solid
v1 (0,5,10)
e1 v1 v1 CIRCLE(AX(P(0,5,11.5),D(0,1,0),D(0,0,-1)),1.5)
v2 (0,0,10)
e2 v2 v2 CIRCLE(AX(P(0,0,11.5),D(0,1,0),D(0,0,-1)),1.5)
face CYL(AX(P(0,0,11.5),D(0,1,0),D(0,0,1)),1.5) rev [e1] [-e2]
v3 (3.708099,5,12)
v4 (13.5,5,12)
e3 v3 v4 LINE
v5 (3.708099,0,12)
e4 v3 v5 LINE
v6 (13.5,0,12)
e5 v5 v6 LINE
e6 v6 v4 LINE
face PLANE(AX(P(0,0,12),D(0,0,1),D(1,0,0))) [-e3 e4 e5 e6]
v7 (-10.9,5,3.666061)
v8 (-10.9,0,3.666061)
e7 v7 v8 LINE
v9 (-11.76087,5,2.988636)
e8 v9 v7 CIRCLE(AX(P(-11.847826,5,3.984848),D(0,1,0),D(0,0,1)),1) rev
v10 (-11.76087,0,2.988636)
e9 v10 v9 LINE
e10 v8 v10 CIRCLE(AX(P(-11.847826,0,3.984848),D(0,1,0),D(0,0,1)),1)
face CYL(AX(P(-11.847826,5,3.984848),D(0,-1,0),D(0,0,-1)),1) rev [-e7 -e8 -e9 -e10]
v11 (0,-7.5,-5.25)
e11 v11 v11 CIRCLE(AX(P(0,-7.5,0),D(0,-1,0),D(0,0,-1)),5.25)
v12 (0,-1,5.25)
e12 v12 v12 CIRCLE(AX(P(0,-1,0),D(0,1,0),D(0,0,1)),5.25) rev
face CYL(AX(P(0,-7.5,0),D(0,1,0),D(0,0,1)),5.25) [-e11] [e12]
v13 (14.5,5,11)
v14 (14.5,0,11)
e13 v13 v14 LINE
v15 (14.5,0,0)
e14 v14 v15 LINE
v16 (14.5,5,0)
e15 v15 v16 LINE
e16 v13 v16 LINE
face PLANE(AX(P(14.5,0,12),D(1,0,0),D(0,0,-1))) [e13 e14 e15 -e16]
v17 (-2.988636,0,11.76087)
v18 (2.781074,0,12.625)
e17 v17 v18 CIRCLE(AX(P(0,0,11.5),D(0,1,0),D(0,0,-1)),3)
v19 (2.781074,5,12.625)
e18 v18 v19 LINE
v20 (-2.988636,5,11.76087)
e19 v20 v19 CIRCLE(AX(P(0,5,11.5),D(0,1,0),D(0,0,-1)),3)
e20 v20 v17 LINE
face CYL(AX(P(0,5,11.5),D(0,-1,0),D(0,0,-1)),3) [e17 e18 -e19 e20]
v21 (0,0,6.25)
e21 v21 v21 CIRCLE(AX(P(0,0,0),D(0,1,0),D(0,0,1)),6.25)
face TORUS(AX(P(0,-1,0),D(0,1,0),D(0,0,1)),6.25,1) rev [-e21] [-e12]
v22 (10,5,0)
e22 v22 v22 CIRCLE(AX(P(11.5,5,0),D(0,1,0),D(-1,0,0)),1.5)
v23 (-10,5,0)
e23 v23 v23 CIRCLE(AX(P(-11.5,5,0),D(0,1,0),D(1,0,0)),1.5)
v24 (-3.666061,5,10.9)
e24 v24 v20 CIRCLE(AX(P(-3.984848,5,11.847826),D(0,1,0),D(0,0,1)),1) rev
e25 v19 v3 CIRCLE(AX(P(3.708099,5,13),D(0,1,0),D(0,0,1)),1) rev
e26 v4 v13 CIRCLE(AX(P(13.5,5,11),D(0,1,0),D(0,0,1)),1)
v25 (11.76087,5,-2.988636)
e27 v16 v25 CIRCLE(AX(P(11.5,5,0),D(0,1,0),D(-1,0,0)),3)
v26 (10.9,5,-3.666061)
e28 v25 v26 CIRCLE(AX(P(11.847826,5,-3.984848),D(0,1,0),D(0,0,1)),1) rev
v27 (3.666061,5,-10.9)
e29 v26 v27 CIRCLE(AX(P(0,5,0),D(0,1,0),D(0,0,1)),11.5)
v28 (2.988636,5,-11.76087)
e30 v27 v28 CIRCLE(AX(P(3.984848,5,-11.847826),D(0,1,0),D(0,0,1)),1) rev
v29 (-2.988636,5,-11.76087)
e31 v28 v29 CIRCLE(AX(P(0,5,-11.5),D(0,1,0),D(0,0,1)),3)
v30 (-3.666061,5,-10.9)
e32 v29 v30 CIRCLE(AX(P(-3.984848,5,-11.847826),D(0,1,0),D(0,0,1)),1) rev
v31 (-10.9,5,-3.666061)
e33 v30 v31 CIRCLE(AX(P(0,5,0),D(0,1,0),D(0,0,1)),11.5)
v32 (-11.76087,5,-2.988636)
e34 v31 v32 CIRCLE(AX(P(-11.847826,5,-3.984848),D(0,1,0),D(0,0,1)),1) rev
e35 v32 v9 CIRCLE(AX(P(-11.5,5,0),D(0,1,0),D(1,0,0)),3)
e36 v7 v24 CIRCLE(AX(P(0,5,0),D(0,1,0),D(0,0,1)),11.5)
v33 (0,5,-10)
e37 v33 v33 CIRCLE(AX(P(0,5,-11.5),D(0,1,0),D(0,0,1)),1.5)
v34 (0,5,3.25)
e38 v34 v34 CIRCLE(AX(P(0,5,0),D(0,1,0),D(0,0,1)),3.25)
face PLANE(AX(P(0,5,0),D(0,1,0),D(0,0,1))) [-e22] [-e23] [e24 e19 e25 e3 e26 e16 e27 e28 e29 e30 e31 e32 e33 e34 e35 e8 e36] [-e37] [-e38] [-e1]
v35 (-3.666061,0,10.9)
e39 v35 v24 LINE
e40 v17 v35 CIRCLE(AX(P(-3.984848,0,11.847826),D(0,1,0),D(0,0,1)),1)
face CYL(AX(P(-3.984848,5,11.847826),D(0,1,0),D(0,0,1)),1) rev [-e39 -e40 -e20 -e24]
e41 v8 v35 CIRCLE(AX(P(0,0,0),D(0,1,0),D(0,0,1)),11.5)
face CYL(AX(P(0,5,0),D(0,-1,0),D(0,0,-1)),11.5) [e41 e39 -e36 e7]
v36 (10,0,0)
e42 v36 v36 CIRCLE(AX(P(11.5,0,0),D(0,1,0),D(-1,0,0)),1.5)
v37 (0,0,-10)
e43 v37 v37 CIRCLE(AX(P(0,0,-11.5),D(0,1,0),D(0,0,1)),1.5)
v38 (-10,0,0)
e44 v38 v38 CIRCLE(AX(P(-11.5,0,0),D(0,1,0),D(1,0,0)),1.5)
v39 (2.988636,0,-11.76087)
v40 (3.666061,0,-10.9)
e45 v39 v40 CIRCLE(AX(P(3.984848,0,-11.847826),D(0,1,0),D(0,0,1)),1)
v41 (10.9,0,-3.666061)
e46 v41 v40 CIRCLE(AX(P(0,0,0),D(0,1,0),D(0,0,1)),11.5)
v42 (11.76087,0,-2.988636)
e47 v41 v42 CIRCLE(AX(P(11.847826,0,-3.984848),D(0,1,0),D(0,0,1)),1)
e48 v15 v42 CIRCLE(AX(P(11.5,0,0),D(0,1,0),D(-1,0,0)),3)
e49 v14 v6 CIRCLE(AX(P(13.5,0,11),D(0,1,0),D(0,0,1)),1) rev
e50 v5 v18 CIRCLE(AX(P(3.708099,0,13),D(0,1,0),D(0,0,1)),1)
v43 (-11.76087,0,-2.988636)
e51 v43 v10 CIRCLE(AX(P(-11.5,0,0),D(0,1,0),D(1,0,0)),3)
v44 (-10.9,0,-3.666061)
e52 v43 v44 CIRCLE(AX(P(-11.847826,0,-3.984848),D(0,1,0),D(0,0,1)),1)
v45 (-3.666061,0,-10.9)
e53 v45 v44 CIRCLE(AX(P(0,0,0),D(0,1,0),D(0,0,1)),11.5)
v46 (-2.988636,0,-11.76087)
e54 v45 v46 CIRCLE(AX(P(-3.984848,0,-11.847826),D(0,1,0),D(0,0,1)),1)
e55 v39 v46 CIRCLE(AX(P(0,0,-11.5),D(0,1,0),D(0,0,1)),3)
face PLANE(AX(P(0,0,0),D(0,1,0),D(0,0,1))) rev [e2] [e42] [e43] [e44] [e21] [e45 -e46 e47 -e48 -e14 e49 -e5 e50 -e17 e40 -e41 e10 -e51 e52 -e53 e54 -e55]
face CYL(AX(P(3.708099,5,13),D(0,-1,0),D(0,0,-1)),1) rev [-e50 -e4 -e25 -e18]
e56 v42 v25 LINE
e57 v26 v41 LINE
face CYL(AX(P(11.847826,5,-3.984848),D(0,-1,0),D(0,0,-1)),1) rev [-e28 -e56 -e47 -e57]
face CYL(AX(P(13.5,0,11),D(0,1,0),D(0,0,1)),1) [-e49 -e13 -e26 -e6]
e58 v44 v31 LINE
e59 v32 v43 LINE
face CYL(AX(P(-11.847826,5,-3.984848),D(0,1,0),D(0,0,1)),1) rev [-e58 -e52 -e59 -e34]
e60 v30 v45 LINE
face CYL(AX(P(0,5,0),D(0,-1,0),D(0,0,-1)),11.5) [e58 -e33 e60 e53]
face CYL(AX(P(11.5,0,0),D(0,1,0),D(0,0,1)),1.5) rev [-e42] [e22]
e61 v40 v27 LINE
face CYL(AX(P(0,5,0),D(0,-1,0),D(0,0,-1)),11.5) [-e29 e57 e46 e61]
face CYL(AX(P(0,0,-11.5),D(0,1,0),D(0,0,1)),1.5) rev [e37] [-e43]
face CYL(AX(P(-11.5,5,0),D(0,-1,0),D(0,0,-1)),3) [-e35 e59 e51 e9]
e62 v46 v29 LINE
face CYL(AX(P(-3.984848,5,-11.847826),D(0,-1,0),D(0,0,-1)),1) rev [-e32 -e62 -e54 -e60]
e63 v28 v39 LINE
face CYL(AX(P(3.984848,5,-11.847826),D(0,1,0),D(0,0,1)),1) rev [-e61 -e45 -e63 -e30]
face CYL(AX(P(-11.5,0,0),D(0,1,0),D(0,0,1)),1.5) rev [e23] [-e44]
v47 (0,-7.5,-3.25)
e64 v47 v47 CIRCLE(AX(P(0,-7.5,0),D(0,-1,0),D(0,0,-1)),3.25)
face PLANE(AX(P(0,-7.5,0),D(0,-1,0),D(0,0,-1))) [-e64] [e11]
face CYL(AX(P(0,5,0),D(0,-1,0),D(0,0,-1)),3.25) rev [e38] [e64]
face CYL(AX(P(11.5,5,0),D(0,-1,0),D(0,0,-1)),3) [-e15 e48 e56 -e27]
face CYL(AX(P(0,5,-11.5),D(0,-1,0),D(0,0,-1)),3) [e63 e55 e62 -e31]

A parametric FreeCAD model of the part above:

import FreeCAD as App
import Part
import Sketcher

V = App.Vector


def edges_at(feature, points):
    """Names of the edges that pass closest to the given points."""
    edges = feature.Shape.Edges
    near = lambda p: min(range(len(edges)), key=lambda i: edges[i].distToShape(Part.Vertex(*p))[0])
    return sorted({f"Edge{near(p) + 1}" for p in points})


def add_polygon(sketch, points):
    """Adds a closed chain of lines whose ends are joined by coincident constraints."""
    first, n = sketch.GeometryCount, len(points)
    for a, b in zip(points, points[1:] + points[:1]):
        sketch.addGeometry(Part.LineSegment(App.Vector(*a, 0), App.Vector(*b, 0)), False)
    for i in range(n):
        sketch.addConstraint(Sketcher.Constraint("Coincident", first + i, 2, first + (i + 1) % n, 1))

doc = App.newDocument("Part")
params = doc.addObject("Spreadsheet::Sheet", "Params")
for row, (alias, value) in enumerate([
    ("sketch1_diameter", "23 mm"),
    ("sketch1_diameter2", "6.5 mm"),
    ("pad1_length", "5 mm"),
    ("sketch2_diameter", "6 mm"),
    ("pad2_length", "5 mm"),
    ("sketch3_diameter", "3 mm"),
    ("pocket1_length", "5 mm"),
    ("sketch4_height", "12 mm"),
    ("sketch4_width", "14.5 mm"),
    ("pad3_length", "5 mm"),
    ("sketch5_diameter", "10.5 mm"),
    ("sketch5_diameter2", "6.5 mm"),
    ("pad4_length", "7.5 mm"),
    ("fillet_radius", "1 mm"),
], start=1):
    params.set(f"A{row}", alias)
    params.set(f"B{row}", "=" + value)
    params.setAlias(f"B{row}", alias)

body = doc.addObject("PartDesign::Body", "Body")

# Sketch on XZ plane
sketch1 = doc.addObject("Sketcher::SketchObject", "Sketch")
body.addObject(sketch1)
sketch1.AttachmentSupport = (doc.XZ_Plane, [""])
sketch1.MapMode = "FlatFace"
sketch1.addGeometry([
    Part.Circle(V(0, 0, 0), V(0, 0, 1), 11.5),
    Part.Circle(V(0, 0, 0), V(0, 0, 1), 3.2),
], False)
sketch1.addConstraint([
    Sketcher.Constraint("Coincident", 0, 3, -1, 1),
    Sketcher.Constraint("Coincident", 1, 3, -1, 1),
    Sketcher.Constraint("Diameter", 0, 23.0),
    Sketcher.Constraint("Diameter", 1, 6.5),
])
sketch1.setExpression("Constraints[2]", "Params.sketch1_diameter")
sketch1.setExpression("Constraints[3]", "Params.sketch1_diameter2")
pad1 = doc.addObject("PartDesign::Pad", "Pad")
body.addObject(pad1)
pad1.Profile = sketch1
pad1.setExpression("Length", "Params.pad1_length")
pad1.Reversed = True

# Sketch on XZ plane
sketch2 = doc.addObject("Sketcher::SketchObject", "Sketch001")
body.addObject(sketch2)
sketch2.AttachmentSupport = (doc.XZ_Plane, [""])
sketch2.MapMode = "FlatFace"
sketch2.addGeometry(Part.Circle(V(0, -11.5, 0), V(0, 0, 1), 3), False)
sketch2.addConstraint([
    Sketcher.Constraint("PointOnObject", 0, 3, -2),
    Sketcher.Constraint("Diameter", 0, 6.0),
    Sketcher.Constraint("DistanceY", 0, 3, -1, 1, 11.5),
])
sketch2.setExpression("Constraints[1]", "Params.sketch2_diameter")
pad2 = doc.addObject("PartDesign::Pad", "Pad001")
body.addObject(pad2)
pad2.Profile = sketch2
pad2.setExpression("Length", "Params.pad2_length")
pad2.Reversed = True

# Sketch on XZ plane
sketch3 = doc.addObject("Sketcher::SketchObject", "Sketch002")
body.addObject(sketch3)
sketch3.AttachmentSupport = (doc.XZ_Plane, [""])
sketch3.MapMode = "FlatFace"
sketch3.AttachmentOffset = App.Placement(V(0, 0, -5), App.Rotation())
sketch3.addGeometry(Part.Circle(V(0, -11.5, 0), V(0, 0, 1), 1.5), False)
sketch3.addConstraint([
    Sketcher.Constraint("PointOnObject", 0, 3, -2),
    Sketcher.Constraint("Diameter", 0, 3.0),
    Sketcher.Constraint("DistanceY", 0, 3, -1, 1, 11.5),
])
sketch3.setExpression("Constraints[1]", "Params.sketch3_diameter")
pocket1 = doc.addObject("PartDesign::Pocket", "Pocket")
body.addObject(pocket1)
pocket1.Profile = sketch3
pocket1.setExpression("Length", "Params.pocket1_length")
pocket1.Reversed = True
doc.recompute()

polarpattern = doc.addObject("PartDesign::PolarPattern", "PolarPattern")
body.addObject(polarpattern)
polarpattern.Originals = [pad2]
polarpattern.Axis = (doc.Y_Axis, [""])
polarpattern.Angle = 360
polarpattern.Occurrences = 4
body.Tip = polarpattern

# Sketch on XZ plane
sketch4 = doc.addObject("Sketcher::SketchObject", "Sketch003")
body.addObject(sketch4)
sketch4.AttachmentSupport = (doc.XZ_Plane, [""])
sketch4.MapMode = "FlatFace"
sketch4.AttachmentOffset = App.Placement(V(0, 0, -5), App.Rotation())
add_polygon(sketch4, [(0, 12), (14.5, 12), (14.5, 0), (10.3, 0)])  # lines 0-3
sketch4.addConstraint([
    Sketcher.Constraint("Horizontal", 0),
    Sketcher.Constraint("Vertical", 1),
    Sketcher.Constraint("Horizontal", 2),
    Sketcher.Constraint("PointOnObject", 1, 2, -1),
    Sketcher.Constraint("PointOnObject", 3, 2, -2),
    Sketcher.Constraint("DistanceY", 1, 2, 1, 1, 12.0),
    Sketcher.Constraint("DistanceX", 0, 1, 0, 2, 14.5),
    Sketcher.Constraint("DistanceX", 2, 2, 2, 1, 4.228163),
])
sketch4.setExpression("Constraints[9]", "Params.sketch4_height")
sketch4.setExpression("Constraints[10]", "Params.sketch4_width")
pad3 = doc.addObject("PartDesign::Pad", "Pad002")
body.addObject(pad3)
pad3.Profile = sketch4
pad3.setExpression("Length", "Params.pad3_length")
doc.recompute()

polarpattern2 = doc.addObject("PartDesign::PolarPattern", "PolarPattern001")
body.addObject(polarpattern2)
polarpattern2.Originals = [pocket1]
polarpattern2.Axis = (doc.Y_Axis, [""])
polarpattern2.Angle = 360
polarpattern2.Occurrences = 4
body.Tip = polarpattern2

# Sketch on XZ plane
sketch5 = doc.addObject("Sketcher::SketchObject", "Sketch004")
body.addObject(sketch5)
sketch5.AttachmentSupport = (doc.XZ_Plane, [""])
sketch5.MapMode = "FlatFace"
sketch5.AttachmentOffset = App.Placement(V(0, 0, 7.5), App.Rotation())
sketch5.addGeometry([
    Part.Circle(V(0, 0, 0), V(0, 0, 1), 5.2),
    Part.Circle(V(0, 0, 0), V(0, 0, 1), 3.2),
], False)
sketch5.addConstraint([
    Sketcher.Constraint("Coincident", 0, 3, -1, 1),
    Sketcher.Constraint("Coincident", 1, 3, -1, 1),
    Sketcher.Constraint("Diameter", 0, 10.5),
    Sketcher.Constraint("Diameter", 1, 6.5),
])
sketch5.setExpression("Constraints[2]", "Params.sketch5_diameter")
sketch5.setExpression("Constraints[3]", "Params.sketch5_diameter2")
pad4 = doc.addObject("PartDesign::Pad", "Pad003")
body.addObject(pad4)
pad4.Profile = sketch5
pad4.setExpression("Length", "Params.pad4_length")
pad4.Reversed = True
doc.recompute()

fillet = doc.addObject("PartDesign::Fillet", "Fillet")
body.addObject(fillet)
fillet.Base = (pad4, edges_at(pad4, [
    (-2.974, 2.5, -11.109),
    (2.974, 2.5, -11.109),
    (-11.109, 2.5, -2.974),
    (-11.109, 2.5, 2.974),
    (-2.974, 2.5, 11.109),
    (11.109, 2.5, -2.974),
    (2.958, 2.5, 12),
    (14.5, 2.5, 12),
    (0, 0, -5.25),
]))
fillet.setExpression("Radius", "Params.fillet_radius")

doc.recompute()
